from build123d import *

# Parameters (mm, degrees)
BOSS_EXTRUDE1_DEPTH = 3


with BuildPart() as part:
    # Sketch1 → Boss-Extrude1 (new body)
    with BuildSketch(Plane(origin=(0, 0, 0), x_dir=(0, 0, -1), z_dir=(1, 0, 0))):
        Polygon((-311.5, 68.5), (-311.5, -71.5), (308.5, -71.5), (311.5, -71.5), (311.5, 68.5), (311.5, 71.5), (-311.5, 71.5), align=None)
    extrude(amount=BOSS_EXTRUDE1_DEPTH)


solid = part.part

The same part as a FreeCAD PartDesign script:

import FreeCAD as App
import Part
import Sketcher
Q = App.Units.Quantity

doc = App.newDocument("Part")
body = doc.addObject("PartDesign::Body", "Body")

# Sketch on YZ plane
sketch1 = doc.addObject("Sketcher::SketchObject", "Sketch")
body.addObject(sketch1)
sketch1.AttachmentSupport = (doc.YZ_Plane, [""])
sketch1.MapMode = "FlatFace"
sketch1.addGeometry(Part.LineSegment(App.Vector(-71.5, 311.5, 0), App.Vector(-71.5, -311.5, 0)), False)
sketch1.addGeometry(Part.LineSegment(App.Vector(-71.5, -311.5, 0), App.Vector(71.5, -311.5, 0)), False)
sketch1.addGeometry(Part.LineSegment(App.Vector(71.5, -311.5, 0), App.Vector(71.5, 311.5, 0)), False)
sketch1.addGeometry(Part.LineSegment(App.Vector(71.5, 311.5, 0), App.Vector(-71.5, 311.5, 0)), False)
sketch1.addConstraint(Sketcher.Constraint("Coincident", 0, 2, 1, 1))
sketch1.addConstraint(Sketcher.Constraint("Coincident", 1, 2, 2, 1))
sketch1.addConstraint(Sketcher.Constraint("Coincident", 2, 2, 3, 1))
sketch1.addConstraint(Sketcher.Constraint("Coincident", 3, 2, 0, 1))
sketch1.addConstraint(Sketcher.Constraint("Vertical", 0))
sketch1.addConstraint(Sketcher.Constraint("Horizontal", 1))
sketch1.addConstraint(Sketcher.Constraint("Vertical", 2))
sketch1.addConstraint(Sketcher.Constraint("Horizontal", 3))
sketch1.addConstraint(Sketcher.Constraint("Symmetric", 0, 2, 2, 2, -1, 1))
sketch1.addConstraint(Sketcher.Constraint("DistanceX", 1, 1, 1, 2, Q("143 mm")))
sketch1.addConstraint(Sketcher.Constraint("DistanceY", 0, 2, 0, 1, Q("623 mm")))
pad1 = doc.addObject("PartDesign::Pad", "Pad")
body.addObject(pad1)
pad1.Profile = sketch1
pad1.Length = 3

doc.recompute()
